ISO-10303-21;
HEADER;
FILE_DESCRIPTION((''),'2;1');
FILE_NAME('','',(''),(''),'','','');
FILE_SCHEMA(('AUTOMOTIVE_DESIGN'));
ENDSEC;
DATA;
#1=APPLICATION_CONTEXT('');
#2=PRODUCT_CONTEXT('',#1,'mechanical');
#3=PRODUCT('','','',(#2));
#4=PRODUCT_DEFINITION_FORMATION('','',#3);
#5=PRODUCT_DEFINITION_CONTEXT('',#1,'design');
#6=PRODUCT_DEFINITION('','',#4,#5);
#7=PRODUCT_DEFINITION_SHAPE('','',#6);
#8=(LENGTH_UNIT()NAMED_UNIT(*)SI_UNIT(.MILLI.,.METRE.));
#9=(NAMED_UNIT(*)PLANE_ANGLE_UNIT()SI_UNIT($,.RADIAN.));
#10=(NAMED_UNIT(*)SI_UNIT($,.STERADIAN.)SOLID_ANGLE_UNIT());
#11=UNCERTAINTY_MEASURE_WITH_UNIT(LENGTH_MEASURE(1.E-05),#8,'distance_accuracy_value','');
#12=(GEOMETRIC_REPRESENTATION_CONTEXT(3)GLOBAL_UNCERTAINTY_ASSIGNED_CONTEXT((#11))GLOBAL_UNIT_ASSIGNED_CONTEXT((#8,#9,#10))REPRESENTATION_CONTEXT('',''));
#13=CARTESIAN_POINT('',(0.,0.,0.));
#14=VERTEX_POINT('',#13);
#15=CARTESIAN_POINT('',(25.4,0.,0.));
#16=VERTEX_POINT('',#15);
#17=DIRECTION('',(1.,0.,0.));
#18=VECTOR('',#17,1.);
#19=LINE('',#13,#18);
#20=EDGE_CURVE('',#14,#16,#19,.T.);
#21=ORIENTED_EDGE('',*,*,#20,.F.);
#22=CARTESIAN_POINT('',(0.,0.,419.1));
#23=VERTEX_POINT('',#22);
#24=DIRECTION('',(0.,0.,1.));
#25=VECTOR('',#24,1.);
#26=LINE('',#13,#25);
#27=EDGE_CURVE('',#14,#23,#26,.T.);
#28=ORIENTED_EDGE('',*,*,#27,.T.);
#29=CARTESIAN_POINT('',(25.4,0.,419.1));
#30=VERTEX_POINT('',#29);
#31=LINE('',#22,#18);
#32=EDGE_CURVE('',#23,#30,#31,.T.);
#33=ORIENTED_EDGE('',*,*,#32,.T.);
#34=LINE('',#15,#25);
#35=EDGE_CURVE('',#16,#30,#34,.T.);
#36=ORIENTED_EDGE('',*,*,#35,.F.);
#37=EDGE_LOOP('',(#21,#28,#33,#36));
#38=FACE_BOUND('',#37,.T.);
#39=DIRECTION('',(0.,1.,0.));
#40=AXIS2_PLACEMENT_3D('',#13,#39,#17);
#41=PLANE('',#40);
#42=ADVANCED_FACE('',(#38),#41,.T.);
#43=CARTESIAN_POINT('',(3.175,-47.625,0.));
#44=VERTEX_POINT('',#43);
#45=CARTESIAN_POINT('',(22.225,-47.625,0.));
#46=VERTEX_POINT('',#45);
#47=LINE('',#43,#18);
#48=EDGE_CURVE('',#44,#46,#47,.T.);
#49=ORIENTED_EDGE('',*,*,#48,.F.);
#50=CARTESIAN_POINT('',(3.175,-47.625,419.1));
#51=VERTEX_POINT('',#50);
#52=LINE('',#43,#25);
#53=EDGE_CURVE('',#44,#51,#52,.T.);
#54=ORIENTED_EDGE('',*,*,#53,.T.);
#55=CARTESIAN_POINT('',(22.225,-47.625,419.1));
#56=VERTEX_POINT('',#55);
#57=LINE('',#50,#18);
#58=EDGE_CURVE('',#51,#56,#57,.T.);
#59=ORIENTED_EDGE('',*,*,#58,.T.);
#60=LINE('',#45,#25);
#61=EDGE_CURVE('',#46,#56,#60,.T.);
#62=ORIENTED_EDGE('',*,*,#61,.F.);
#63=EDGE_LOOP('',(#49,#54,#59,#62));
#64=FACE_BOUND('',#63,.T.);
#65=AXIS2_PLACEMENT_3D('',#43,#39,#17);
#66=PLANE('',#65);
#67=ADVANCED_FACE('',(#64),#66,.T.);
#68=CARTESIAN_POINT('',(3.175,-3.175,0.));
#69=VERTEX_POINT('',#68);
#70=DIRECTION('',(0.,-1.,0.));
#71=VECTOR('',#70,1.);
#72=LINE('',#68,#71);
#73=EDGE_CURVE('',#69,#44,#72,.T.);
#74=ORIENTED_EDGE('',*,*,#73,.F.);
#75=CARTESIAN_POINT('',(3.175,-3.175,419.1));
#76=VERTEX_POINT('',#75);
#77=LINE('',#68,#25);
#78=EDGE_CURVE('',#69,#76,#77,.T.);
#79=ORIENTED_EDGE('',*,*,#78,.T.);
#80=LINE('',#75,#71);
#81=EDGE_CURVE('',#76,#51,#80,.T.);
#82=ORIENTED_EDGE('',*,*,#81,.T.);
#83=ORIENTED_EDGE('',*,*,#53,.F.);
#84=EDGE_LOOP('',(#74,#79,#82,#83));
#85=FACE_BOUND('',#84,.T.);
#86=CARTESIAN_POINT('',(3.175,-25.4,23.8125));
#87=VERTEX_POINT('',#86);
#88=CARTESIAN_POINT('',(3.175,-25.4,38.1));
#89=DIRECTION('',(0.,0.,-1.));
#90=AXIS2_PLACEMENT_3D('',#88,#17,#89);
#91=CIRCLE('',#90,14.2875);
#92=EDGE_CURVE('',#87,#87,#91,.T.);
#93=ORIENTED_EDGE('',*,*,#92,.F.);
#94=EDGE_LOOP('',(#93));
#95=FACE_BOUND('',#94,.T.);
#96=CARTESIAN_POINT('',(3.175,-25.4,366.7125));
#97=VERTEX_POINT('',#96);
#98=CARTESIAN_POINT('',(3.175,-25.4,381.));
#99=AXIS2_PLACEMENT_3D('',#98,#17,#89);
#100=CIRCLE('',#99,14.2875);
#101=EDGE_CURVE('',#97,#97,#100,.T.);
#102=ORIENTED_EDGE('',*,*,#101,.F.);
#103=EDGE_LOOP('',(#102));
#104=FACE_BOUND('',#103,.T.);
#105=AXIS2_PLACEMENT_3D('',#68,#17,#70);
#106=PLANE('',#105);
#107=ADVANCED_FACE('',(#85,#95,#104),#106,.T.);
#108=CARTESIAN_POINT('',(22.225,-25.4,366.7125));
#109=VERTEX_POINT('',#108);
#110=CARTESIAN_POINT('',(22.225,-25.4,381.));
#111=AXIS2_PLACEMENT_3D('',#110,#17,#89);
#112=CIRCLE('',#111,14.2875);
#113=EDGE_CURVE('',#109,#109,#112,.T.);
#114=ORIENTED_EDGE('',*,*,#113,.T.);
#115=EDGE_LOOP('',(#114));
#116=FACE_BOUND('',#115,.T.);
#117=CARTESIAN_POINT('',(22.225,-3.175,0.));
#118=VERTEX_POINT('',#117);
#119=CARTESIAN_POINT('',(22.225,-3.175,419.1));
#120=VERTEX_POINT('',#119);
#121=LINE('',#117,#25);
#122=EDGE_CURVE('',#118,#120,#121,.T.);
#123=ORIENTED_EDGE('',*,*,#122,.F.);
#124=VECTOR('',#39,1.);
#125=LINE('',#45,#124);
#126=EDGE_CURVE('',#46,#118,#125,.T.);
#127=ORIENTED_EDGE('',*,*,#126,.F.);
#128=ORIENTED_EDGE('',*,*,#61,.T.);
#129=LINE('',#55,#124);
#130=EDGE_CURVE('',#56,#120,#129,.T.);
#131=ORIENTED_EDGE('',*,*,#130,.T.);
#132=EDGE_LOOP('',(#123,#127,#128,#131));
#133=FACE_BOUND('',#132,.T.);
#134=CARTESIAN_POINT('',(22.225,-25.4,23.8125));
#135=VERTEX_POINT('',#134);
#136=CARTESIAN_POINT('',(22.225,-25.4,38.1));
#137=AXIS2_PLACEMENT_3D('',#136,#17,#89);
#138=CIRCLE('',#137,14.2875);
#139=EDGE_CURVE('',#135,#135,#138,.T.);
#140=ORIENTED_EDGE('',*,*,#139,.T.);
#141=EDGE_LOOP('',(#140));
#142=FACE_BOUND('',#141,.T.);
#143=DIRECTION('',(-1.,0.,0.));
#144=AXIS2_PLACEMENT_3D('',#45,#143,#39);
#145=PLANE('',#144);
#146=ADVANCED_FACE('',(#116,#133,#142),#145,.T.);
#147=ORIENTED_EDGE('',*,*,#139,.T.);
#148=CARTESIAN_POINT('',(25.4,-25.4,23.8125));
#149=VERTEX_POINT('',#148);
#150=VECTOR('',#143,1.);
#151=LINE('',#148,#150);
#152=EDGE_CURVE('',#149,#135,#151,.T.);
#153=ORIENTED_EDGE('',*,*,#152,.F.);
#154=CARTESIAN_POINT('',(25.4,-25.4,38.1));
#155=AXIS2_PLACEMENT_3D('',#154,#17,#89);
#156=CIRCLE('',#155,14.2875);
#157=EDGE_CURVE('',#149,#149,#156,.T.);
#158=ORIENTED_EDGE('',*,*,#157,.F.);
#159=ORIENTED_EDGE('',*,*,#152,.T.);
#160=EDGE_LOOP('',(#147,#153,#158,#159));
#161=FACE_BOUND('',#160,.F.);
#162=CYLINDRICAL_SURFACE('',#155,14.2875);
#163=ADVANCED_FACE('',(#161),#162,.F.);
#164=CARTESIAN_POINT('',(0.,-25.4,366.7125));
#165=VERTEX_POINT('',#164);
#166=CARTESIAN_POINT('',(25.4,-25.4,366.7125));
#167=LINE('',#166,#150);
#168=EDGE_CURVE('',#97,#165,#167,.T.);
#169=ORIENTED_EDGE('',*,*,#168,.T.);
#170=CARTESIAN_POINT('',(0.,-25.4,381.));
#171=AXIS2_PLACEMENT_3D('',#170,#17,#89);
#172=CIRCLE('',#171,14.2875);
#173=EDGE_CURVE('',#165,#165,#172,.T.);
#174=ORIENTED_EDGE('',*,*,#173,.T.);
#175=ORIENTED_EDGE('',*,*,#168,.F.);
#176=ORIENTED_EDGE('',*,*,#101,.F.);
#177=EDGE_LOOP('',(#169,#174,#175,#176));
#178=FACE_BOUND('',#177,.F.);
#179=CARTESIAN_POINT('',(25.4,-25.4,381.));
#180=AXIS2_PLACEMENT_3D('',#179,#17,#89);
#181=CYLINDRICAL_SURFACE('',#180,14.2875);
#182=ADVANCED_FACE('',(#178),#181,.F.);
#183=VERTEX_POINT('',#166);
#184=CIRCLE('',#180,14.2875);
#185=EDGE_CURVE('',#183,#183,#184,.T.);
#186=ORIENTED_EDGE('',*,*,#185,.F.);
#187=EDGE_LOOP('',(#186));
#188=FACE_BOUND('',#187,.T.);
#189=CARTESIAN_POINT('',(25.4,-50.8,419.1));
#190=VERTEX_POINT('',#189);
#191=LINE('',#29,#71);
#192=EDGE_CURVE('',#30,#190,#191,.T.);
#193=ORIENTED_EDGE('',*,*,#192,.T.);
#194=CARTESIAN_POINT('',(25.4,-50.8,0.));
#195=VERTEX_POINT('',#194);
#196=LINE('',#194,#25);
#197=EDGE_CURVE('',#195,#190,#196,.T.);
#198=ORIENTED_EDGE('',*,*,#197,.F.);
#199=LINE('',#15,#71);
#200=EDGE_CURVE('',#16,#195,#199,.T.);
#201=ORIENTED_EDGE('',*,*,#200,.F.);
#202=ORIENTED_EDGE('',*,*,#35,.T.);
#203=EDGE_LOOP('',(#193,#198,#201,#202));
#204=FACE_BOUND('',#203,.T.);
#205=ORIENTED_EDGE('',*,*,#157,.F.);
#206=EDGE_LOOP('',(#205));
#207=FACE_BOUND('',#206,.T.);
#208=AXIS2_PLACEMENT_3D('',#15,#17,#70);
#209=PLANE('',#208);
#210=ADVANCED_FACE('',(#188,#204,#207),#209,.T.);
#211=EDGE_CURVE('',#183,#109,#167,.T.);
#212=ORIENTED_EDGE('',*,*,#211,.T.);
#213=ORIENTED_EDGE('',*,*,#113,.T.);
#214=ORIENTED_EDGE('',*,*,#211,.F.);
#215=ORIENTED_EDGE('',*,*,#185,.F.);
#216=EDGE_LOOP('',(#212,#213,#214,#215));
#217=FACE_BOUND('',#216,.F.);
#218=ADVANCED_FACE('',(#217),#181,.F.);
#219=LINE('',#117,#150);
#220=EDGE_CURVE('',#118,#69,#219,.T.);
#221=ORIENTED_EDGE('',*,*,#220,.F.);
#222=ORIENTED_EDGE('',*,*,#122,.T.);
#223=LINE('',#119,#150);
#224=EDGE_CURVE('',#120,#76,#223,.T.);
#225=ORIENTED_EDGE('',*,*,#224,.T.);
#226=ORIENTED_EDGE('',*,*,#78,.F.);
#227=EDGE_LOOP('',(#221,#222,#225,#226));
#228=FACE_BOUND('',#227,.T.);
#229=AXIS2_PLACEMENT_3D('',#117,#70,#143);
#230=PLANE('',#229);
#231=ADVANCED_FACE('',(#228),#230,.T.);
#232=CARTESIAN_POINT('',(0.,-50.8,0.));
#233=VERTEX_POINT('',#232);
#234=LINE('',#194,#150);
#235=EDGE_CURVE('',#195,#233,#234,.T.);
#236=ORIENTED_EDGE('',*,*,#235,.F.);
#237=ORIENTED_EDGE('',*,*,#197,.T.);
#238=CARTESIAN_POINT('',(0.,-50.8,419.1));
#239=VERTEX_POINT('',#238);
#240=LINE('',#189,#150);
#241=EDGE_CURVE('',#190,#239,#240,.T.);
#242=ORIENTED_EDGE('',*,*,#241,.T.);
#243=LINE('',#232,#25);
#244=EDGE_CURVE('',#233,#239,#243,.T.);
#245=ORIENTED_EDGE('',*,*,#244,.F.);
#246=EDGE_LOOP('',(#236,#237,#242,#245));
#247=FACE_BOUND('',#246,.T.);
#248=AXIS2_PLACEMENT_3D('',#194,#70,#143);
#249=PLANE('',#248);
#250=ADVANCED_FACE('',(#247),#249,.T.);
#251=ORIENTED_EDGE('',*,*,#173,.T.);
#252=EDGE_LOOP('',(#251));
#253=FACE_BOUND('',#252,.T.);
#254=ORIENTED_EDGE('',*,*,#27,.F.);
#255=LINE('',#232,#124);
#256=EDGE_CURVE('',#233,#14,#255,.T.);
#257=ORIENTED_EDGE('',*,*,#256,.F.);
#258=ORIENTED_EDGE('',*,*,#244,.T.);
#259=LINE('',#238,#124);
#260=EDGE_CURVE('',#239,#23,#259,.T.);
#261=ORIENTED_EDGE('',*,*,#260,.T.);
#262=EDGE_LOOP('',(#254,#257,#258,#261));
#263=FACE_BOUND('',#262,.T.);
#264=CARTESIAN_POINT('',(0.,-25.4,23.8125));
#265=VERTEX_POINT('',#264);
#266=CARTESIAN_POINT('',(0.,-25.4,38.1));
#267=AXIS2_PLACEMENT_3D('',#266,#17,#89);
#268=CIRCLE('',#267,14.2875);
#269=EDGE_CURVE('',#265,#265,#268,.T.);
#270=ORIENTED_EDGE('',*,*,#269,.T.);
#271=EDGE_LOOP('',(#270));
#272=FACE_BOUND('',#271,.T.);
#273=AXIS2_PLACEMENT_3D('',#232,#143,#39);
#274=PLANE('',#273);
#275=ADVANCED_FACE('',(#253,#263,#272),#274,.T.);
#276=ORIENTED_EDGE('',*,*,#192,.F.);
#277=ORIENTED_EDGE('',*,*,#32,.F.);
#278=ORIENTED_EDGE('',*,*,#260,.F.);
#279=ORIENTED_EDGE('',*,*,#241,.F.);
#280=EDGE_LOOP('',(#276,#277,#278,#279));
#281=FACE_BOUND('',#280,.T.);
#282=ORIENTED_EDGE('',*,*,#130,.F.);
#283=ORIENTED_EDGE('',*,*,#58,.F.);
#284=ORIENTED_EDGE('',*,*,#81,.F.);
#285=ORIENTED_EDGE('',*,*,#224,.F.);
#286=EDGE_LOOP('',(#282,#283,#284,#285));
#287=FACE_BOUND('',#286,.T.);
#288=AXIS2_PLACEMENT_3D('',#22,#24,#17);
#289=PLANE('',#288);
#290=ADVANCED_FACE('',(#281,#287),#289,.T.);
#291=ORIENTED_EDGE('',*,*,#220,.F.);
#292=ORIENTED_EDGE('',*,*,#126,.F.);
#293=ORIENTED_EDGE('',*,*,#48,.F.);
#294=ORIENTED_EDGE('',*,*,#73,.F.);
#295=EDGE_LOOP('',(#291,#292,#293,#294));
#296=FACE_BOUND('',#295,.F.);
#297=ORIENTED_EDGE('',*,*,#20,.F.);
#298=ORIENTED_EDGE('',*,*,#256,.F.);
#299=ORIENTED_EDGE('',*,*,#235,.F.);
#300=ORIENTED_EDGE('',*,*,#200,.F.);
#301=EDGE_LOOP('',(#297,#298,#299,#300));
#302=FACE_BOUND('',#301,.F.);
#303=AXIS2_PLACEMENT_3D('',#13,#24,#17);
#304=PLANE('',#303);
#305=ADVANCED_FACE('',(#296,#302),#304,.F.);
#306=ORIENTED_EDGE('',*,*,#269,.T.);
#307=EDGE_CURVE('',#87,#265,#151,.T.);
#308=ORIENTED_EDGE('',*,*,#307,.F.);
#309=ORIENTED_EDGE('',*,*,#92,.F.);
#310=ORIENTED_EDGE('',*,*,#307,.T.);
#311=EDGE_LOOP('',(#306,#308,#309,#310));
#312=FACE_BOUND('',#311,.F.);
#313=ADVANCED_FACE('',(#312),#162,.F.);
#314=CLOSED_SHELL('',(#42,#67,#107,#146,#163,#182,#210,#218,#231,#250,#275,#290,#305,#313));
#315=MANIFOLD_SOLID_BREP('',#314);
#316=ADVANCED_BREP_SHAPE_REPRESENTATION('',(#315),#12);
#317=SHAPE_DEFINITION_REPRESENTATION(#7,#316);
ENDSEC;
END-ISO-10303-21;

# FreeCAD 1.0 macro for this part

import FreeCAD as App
import Part
import Sketcher
from FreeCAD import Vector
Q = App.Units.Quantity

doc = App.newDocument("Part")
body = doc.addObject("PartDesign::Body", "Body")

sketch1 = doc.addObject("Sketcher::SketchObject", "Sketch")
body.addObject(sketch1)
sketch1.AttachmentSupport = (doc.XY_Plane, [""])
sketch1.MapMode = "FlatFace"
sketch1.addGeometry(Part.LineSegment(Vector(25, 0, 0), Vector(0, 0, 0)), False)
sketch1.addGeometry(Part.LineSegment(Vector(0, 0, 0), Vector(0, -51, 0)), False)
sketch1.addGeometry(Part.LineSegment(Vector(0, -51, 0), Vector(25, -51, 0)), False)
sketch1.addGeometry(Part.LineSegment(Vector(25, -51, 0), Vector(25, 0, 0)), False)
sketch1.addGeometry(Part.LineSegment(Vector(3, -3, 0), Vector(22, -3, 0)), False)
sketch1.addGeometry(Part.LineSegment(Vector(22, -3, 0), Vector(22, -48, 0)), False)
sketch1.addGeometry(Part.LineSegment(Vector(22, -48, 0), Vector(3, -48, 0)), False)
sketch1.addGeometry(Part.LineSegment(Vector(3, -48, 0), Vector(3, -3, 0)), False)
sketch1.addConstraint(Sketcher.Constraint("Coincident", 0, 2, 1, 1))
sketch1.addConstraint(Sketcher.Constraint("Coincident", 1, 2, 2, 1))
sketch1.addConstraint(Sketcher.Constraint("Coincident", 2, 2, 3, 1))
sketch1.addConstraint(Sketcher.Constraint("Coincident", 3, 2, 0, 1))
sketch1.addConstraint(Sketcher.Constraint("Coincident", 4, 2, 5, 1))
sketch1.addConstraint(Sketcher.Constraint("Coincident", 5, 2, 6, 1))
sketch1.addConstraint(Sketcher.Constraint("Coincident", 6, 2, 7, 1))
sketch1.addConstraint(Sketcher.Constraint("Coincident", 7, 2, 4, 1))
sketch1.addConstraint(Sketcher.Constraint("Horizontal", 0))
sketch1.addConstraint(Sketcher.Constraint("Vertical", 1))
sketch1.addConstraint(Sketcher.Constraint("Horizontal", 2))
sketch1.addConstraint(Sketcher.Constraint("Vertical", 3))
sketch1.addConstraint(Sketcher.Constraint("Horizontal", 4))
sketch1.addConstraint(Sketcher.Constraint("Vertical", 5))
sketch1.addConstraint(Sketcher.Constraint("Horizontal", 6))
sketch1.addConstraint(Sketcher.Constraint("Vertical", 7))
sketch1.addConstraint(Sketcher.Constraint("Coincident", 0, 2, -1, 1))
sketch1.addConstraint(Sketcher.Constraint("DistanceX", 0, 2, 0, 1, Q("1 in")))
sketch1.addConstraint(Sketcher.Constraint("DistanceY", 1, 2, 1, 1, Q("2 in")))
sketch1.addConstraint(Sketcher.Constraint("DistanceY", 4, 2, -1, 1, Q("0.125 in")))
sketch1.addConstraint(Sketcher.Constraint("DistanceX", -1, 1, 6, 2, Q("0.125 in")))
sketch1.addConstraint(Sketcher.Constraint("DistanceX", 4, 2, 3, 2, Q("0.125 in")))
sketch1.addConstraint(Sketcher.Constraint("DistanceY", 2, 2, 5, 2, Q("0.125 in")))
pad1 = doc.addObject("PartDesign::Pad", "Pad")
body.addObject(pad1)
pad1.Profile = sketch1
pad1.Length = Q("16.5 in")

sketch2 = doc.addObject("Sketcher::SketchObject", "Sketch001")
body.addObject(sketch2)
sketch2.AttachmentSupport = (doc.YZ_Plane, [""])
sketch2.MapMode = "FlatFace"
sketch2.AttachmentOffset = App.Placement(Vector(0, 0, 1 * 25.4), App.Rotation())
sketch2.addGeometry(Part.Circle(Vector(-25, 381, 0), Vector(0, 0, 1), 14), False)
sketch2.addGeometry(Part.Circle(Vector(-25, 38, 0), Vector(0, 0, 1), 14), False)
sketch2.addConstraint(Sketcher.Constraint("Equal", 0, 1))
sketch2.addConstraint(Sketcher.Constraint("Vertical", 0, 3, 1, 3))
sketch2.addConstraint(Sketcher.Constraint("Diameter", 0, Q("1.125 in")))
sketch2.addConstraint(Sketcher.Constraint("DistanceX", 0, 3, -1, 1, Q("1 in")))
sketch2.addConstraint(Sketcher.Constraint("DistanceY", -1, 1, 1, 3, Q("1.5 in")))
sketch2.addConstraint(Sketcher.Constraint("DistanceY", 1, 3, 0, 3, Q("13.5 in")))
pocket1 = doc.addObject("PartDesign::Pocket", "Pocket")
body.addObject(pocket1)
pocket1.Profile = sketch2
pocket1.Length = 376.623

doc.recompute()
